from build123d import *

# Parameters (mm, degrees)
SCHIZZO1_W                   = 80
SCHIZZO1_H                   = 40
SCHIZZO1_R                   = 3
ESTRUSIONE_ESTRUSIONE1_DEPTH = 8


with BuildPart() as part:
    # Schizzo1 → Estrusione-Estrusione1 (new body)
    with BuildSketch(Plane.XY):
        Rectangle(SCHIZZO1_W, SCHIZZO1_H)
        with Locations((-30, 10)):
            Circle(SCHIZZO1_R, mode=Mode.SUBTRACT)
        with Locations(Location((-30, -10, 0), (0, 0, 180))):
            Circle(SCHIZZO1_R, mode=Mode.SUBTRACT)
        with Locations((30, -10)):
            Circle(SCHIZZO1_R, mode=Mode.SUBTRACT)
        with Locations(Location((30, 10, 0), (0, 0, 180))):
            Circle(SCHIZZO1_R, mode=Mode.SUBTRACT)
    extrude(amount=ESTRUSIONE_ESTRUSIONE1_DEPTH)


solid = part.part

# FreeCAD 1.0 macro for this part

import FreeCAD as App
import Part
import Sketcher

V = App.Vector

doc = App.newDocument("Part")
body = doc.addObject("PartDesign::Body", "Body")

sketch1 = doc.addObject("Sketcher::SketchObject", "Sketch")
body.addObject(sketch1)
sketch1.AttachmentSupport = (doc.XY_Plane, [""])
sketch1.MapMode = "FlatFace"
sketch1.addGeometry(Part.LineSegment(V(-40, 20, 0), V(-40, -20, 0)), False)
sketch1.addGeometry(Part.LineSegment(V(-40, -20, 0), V(40, -20, 0)), False)
sketch1.addGeometry(Part.LineSegment(V(40, -20, 0), V(40, 20, 0)), False)
sketch1.addGeometry(Part.LineSegment(V(40, 20, 0), V(-40, 20, 0)), False)
sketch1.addGeometry(Part.Circle(V(-30, -10, 0), V(0, 0, 1), 3), False)
sketch1.addGeometry(Part.Circle(V(30, -10, 0), V(0, 0, 1), 3), False)
sketch1.addGeometry(Part.Circle(V(-30, 10, 0), V(0, 0, 1), 3), False)
sketch1.addGeometry(Part.Circle(V(30, 10, 0), V(0, 0, 1), 3), False)
sketch1.addConstraint(Sketcher.Constraint("Coincident", 0, 2, 1, 1))
sketch1.addConstraint(Sketcher.Constraint("Coincident", 1, 2, 2, 1))
sketch1.addConstraint(Sketcher.Constraint("Coincident", 2, 2, 3, 1))
sketch1.addConstraint(Sketcher.Constraint("Coincident", 3, 2, 0, 1))
sketch1.addConstraint(Sketcher.Constraint("Vertical", 0))
sketch1.addConstraint(Sketcher.Constraint("Horizontal", 1))
sketch1.addConstraint(Sketcher.Constraint("Vertical", 2))
sketch1.addConstraint(Sketcher.Constraint("Horizontal", 3))
sketch1.addConstraint(Sketcher.Constraint("Equal", 4, 5))
sketch1.addConstraint(Sketcher.Constraint("Equal", 5, 6))
sketch1.addConstraint(Sketcher.Constraint("Equal", 6, 7))
sketch1.addConstraint(Sketcher.Constraint("Symmetric", 5, 3, 6, 3, -1, 1))
sketch1.addConstraint(Sketcher.Constraint("Symmetric", 4, 3, 7, 3, -1, 1))
sketch1.addConstraint(Sketcher.Constraint("Symmetric", 0, 2, 2, 2, -1, 1))
sketch1.addConstraint(Sketcher.Constraint("Symmetric", 4, 3, 5, 3, -2))
sketch1.addConstraint(Sketcher.Constraint("Diameter", 4, 6.0))
sketch1.addConstraint(Sketcher.Constraint("DistanceX", 1, 1, 1, 2, 80.0))
sketch1.addConstraint(Sketcher.Constraint("DistanceY", 0, 2, 0, 1, 40.0))
sketch1.addConstraint(Sketcher.Constraint("DistanceX", 4, 3, -1, 1, 30.0))
sketch1.addConstraint(Sketcher.Constraint("DistanceY", 4, 3, -1, 1, 10.0))
pad1 = doc.addObject("PartDesign::Pad", "Pad")
body.addObject(pad1)
pad1.Profile = sketch1
pad1.Length = 8

doc.recompute()
